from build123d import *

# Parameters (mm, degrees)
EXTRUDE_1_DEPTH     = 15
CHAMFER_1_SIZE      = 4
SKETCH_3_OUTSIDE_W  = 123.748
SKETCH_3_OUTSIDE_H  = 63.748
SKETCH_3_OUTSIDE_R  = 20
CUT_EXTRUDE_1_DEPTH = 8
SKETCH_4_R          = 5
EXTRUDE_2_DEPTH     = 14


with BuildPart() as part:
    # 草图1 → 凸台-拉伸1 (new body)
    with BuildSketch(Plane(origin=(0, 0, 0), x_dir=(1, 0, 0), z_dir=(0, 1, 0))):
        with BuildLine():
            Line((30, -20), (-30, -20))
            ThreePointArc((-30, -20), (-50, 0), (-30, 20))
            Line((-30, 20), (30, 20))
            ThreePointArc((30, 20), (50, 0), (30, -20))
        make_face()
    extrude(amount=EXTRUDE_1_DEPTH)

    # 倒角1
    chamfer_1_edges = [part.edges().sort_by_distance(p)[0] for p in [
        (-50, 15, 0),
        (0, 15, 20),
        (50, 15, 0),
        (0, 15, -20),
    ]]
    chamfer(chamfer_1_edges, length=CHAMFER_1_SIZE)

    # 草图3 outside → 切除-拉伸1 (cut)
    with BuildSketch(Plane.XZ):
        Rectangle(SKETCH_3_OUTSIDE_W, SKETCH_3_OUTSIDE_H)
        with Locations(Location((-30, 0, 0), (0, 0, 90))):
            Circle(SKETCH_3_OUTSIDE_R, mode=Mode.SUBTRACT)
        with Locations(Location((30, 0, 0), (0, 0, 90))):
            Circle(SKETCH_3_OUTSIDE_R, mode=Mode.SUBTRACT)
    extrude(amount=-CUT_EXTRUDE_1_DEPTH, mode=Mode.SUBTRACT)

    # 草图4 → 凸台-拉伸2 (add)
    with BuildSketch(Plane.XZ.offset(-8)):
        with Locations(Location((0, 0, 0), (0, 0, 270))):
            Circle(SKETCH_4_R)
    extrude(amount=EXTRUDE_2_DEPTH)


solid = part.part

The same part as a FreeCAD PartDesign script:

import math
import FreeCAD as App
import Part
import Sketcher

V = App.Vector
Q = App.Units.Quantity


def edges_at(feature, points):
    """Names of the edges that pass closest to the given points."""
    edges = feature.Shape.Edges
    near = lambda p: min(range(len(edges)), key=lambda i: edges[i].distToShape(Part.Vertex(*p))[0])
    return sorted({f"Edge{near(p) + 1}" for p in points})

doc = App.newDocument("Part")
params = doc.addObject("Spreadsheet::Sheet", "Params")
for row, (alias, value) in enumerate([
    ("sketch1_radius", "20 mm"),
    ("sketch1_width", "60 mm"),
    ("pad1_length", "15 mm"),
    ("chamfer_size", "4 mm"),
    ("sketch2_diameter", "40 mm"),
    ("pocket1_length", "8 mm"),
    ("sketch3_diameter", "10 mm"),
    ("pad2_length", "14 mm"),
], start=1):
    params.set(f"A{row}", alias)
    params.set(f"B{row}", "=" + value)
    params.setAlias(f"B{row}", alias)

body = doc.addObject("PartDesign::Body", "Body")

# Sketch on XZ plane
sketch1 = body.newObject("Sketcher::SketchObject", "Sketch")
sketch1.AttachmentSupport = (doc.getObject("XZ_Plane"), [""])
sketch1.MapMode = "FlatFace"
sketch1.addGeometry([
    Part.LineSegment(V(-30, 20, 0), V(30, 20, 0)),
    Part.ArcOfCircle(Part.Circle(V(30, 0, 0), V(0, 0, 1), 20), math.radians(-90), math.radians(90)),
    Part.LineSegment(V(30, -20, 0), V(-30, -20, 0)),
    Part.ArcOfCircle(Part.Circle(V(-30, 0, 0), V(0, 0, 1), 20), math.radians(90), math.radians(270)),
], False)
sketch1.addConstraint([
    Sketcher.Constraint("Tangent", 0, 2, 1, 2),
    Sketcher.Constraint("Tangent", 1, 1, 2, 1),
    Sketcher.Constraint("Tangent", 2, 2, 3, 2),
    Sketcher.Constraint("Tangent", 3, 1, 0, 1),
    Sketcher.Constraint("Horizontal", 0),
    Sketcher.Constraint("Horizontal", 2),
    Sketcher.Constraint("Symmetric", 1, 3, 3, 3, -1, 1),
    Sketcher.Constraint("Radius", 1, Q("20 mm")),
    Sketcher.Constraint("DistanceX", 0, 1, 0, 2, Q("60 mm")),
])
sketch1.setExpression("Constraints[7]", "Params.sketch1_radius")
sketch1.setExpression("Constraints[8]", "Params.sketch1_width")
pad1 = body.newObject("PartDesign::Pad", "Pad")
pad1.Profile = sketch1
pad1.setExpression("Length", "Params.pad1_length")
pad1.Reversed = True
doc.recompute()

chamfer = body.newObject("PartDesign::Chamfer", "Chamfer")
chamfer.Base = (pad1, edges_at(pad1, [
    (-50, 15, 0),
    (0, 15, 20),
    (50, 15, 0),
    (0, 15, -20),
]))
chamfer.setExpression("Size", "Params.chamfer_size")

# Sketch on XZ plane
sketch2 = body.newObject("Sketcher::SketchObject", "Sketch001")
sketch2.AttachmentSupport = (doc.getObject("XZ_Plane"), [""])
sketch2.MapMode = "FlatFace"
sketch2.addGeometry([
    Part.LineSegment(V(-62, 32, 0), V(-62, -32, 0)),  # 0
    Part.LineSegment(V(-62, -32, 0), V(62, -32, 0)),  # 1
    Part.LineSegment(V(62, -32, 0), V(62, 32, 0)),  # 2
    Part.LineSegment(V(62, 32, 0), V(-62, 32, 0)),  # 3
    Part.Circle(V(-30, 0, 0), V(0, 0, 1), 20),  # 4
    Part.Circle(V(30, 0, 0), V(0, 0, 1), 20),  # 5
], False)
sketch2.addConstraint([
    Sketcher.Constraint("Coincident", 0, 2, 1, 1),
    Sketcher.Constraint("Coincident", 1, 2, 2, 1),
    Sketcher.Constraint("Coincident", 2, 2, 3, 1),
    Sketcher.Constraint("Coincident", 3, 2, 0, 1),
    Sketcher.Constraint("Vertical", 0),
    Sketcher.Constraint("Horizontal", 1),
    Sketcher.Constraint("Vertical", 2),
    Sketcher.Constraint("Horizontal", 3),
    Sketcher.Constraint("Equal", 4, 5),
    Sketcher.Constraint("Symmetric", 4, 3, 5, 3, -1, 1),
    Sketcher.Constraint("Symmetric", 0, 2, 2, 2, -1, 1),
    Sketcher.Constraint("PointOnObject", 4, 3, -1),
    Sketcher.Constraint("Diameter", 4, Q("40 mm")),
    Sketcher.Constraint("DistanceX", 4, 3, -1, 1, Q("30 mm")),
    Sketcher.Constraint("DistanceX", 1, 1, 1, 2, Q("123.748 mm")),
    Sketcher.Constraint("DistanceY", 0, 2, 0, 1, Q("63.748 mm")),
])
sketch2.setExpression("Constraints[12]", "Params.sketch2_diameter")
pocket1 = body.newObject("PartDesign::Pocket", "Pocket")
pocket1.Profile = sketch2
pocket1.setExpression("Length", "Params.pocket1_length")

# Sketch on XZ plane
sketch3 = body.newObject("Sketcher::SketchObject", "Sketch002")
sketch3.AttachmentSupport = (doc.getObject("XZ_Plane"), [""])
sketch3.MapMode = "FlatFace"
sketch3.AttachmentOffset = App.Placement(V(0, 0, -8), App.Rotation())
sketch3.addGeometry(Part.Circle(V(0, 0, 0), V(0, 0, 1), 5), False)
sketch3.addConstraint([
    Sketcher.Constraint("Coincident", 0, 3, -1, 1),
    Sketcher.Constraint("Diameter", 0, Q("10 mm")),
])
sketch3.setExpression("Constraints[1]", "Params.sketch3_diameter")
pad2 = body.newObject("PartDesign::Pad", "Pad001")
pad2.Profile = sketch3
pad2.setExpression("Length", "Params.pad2_length")

doc.recompute()
